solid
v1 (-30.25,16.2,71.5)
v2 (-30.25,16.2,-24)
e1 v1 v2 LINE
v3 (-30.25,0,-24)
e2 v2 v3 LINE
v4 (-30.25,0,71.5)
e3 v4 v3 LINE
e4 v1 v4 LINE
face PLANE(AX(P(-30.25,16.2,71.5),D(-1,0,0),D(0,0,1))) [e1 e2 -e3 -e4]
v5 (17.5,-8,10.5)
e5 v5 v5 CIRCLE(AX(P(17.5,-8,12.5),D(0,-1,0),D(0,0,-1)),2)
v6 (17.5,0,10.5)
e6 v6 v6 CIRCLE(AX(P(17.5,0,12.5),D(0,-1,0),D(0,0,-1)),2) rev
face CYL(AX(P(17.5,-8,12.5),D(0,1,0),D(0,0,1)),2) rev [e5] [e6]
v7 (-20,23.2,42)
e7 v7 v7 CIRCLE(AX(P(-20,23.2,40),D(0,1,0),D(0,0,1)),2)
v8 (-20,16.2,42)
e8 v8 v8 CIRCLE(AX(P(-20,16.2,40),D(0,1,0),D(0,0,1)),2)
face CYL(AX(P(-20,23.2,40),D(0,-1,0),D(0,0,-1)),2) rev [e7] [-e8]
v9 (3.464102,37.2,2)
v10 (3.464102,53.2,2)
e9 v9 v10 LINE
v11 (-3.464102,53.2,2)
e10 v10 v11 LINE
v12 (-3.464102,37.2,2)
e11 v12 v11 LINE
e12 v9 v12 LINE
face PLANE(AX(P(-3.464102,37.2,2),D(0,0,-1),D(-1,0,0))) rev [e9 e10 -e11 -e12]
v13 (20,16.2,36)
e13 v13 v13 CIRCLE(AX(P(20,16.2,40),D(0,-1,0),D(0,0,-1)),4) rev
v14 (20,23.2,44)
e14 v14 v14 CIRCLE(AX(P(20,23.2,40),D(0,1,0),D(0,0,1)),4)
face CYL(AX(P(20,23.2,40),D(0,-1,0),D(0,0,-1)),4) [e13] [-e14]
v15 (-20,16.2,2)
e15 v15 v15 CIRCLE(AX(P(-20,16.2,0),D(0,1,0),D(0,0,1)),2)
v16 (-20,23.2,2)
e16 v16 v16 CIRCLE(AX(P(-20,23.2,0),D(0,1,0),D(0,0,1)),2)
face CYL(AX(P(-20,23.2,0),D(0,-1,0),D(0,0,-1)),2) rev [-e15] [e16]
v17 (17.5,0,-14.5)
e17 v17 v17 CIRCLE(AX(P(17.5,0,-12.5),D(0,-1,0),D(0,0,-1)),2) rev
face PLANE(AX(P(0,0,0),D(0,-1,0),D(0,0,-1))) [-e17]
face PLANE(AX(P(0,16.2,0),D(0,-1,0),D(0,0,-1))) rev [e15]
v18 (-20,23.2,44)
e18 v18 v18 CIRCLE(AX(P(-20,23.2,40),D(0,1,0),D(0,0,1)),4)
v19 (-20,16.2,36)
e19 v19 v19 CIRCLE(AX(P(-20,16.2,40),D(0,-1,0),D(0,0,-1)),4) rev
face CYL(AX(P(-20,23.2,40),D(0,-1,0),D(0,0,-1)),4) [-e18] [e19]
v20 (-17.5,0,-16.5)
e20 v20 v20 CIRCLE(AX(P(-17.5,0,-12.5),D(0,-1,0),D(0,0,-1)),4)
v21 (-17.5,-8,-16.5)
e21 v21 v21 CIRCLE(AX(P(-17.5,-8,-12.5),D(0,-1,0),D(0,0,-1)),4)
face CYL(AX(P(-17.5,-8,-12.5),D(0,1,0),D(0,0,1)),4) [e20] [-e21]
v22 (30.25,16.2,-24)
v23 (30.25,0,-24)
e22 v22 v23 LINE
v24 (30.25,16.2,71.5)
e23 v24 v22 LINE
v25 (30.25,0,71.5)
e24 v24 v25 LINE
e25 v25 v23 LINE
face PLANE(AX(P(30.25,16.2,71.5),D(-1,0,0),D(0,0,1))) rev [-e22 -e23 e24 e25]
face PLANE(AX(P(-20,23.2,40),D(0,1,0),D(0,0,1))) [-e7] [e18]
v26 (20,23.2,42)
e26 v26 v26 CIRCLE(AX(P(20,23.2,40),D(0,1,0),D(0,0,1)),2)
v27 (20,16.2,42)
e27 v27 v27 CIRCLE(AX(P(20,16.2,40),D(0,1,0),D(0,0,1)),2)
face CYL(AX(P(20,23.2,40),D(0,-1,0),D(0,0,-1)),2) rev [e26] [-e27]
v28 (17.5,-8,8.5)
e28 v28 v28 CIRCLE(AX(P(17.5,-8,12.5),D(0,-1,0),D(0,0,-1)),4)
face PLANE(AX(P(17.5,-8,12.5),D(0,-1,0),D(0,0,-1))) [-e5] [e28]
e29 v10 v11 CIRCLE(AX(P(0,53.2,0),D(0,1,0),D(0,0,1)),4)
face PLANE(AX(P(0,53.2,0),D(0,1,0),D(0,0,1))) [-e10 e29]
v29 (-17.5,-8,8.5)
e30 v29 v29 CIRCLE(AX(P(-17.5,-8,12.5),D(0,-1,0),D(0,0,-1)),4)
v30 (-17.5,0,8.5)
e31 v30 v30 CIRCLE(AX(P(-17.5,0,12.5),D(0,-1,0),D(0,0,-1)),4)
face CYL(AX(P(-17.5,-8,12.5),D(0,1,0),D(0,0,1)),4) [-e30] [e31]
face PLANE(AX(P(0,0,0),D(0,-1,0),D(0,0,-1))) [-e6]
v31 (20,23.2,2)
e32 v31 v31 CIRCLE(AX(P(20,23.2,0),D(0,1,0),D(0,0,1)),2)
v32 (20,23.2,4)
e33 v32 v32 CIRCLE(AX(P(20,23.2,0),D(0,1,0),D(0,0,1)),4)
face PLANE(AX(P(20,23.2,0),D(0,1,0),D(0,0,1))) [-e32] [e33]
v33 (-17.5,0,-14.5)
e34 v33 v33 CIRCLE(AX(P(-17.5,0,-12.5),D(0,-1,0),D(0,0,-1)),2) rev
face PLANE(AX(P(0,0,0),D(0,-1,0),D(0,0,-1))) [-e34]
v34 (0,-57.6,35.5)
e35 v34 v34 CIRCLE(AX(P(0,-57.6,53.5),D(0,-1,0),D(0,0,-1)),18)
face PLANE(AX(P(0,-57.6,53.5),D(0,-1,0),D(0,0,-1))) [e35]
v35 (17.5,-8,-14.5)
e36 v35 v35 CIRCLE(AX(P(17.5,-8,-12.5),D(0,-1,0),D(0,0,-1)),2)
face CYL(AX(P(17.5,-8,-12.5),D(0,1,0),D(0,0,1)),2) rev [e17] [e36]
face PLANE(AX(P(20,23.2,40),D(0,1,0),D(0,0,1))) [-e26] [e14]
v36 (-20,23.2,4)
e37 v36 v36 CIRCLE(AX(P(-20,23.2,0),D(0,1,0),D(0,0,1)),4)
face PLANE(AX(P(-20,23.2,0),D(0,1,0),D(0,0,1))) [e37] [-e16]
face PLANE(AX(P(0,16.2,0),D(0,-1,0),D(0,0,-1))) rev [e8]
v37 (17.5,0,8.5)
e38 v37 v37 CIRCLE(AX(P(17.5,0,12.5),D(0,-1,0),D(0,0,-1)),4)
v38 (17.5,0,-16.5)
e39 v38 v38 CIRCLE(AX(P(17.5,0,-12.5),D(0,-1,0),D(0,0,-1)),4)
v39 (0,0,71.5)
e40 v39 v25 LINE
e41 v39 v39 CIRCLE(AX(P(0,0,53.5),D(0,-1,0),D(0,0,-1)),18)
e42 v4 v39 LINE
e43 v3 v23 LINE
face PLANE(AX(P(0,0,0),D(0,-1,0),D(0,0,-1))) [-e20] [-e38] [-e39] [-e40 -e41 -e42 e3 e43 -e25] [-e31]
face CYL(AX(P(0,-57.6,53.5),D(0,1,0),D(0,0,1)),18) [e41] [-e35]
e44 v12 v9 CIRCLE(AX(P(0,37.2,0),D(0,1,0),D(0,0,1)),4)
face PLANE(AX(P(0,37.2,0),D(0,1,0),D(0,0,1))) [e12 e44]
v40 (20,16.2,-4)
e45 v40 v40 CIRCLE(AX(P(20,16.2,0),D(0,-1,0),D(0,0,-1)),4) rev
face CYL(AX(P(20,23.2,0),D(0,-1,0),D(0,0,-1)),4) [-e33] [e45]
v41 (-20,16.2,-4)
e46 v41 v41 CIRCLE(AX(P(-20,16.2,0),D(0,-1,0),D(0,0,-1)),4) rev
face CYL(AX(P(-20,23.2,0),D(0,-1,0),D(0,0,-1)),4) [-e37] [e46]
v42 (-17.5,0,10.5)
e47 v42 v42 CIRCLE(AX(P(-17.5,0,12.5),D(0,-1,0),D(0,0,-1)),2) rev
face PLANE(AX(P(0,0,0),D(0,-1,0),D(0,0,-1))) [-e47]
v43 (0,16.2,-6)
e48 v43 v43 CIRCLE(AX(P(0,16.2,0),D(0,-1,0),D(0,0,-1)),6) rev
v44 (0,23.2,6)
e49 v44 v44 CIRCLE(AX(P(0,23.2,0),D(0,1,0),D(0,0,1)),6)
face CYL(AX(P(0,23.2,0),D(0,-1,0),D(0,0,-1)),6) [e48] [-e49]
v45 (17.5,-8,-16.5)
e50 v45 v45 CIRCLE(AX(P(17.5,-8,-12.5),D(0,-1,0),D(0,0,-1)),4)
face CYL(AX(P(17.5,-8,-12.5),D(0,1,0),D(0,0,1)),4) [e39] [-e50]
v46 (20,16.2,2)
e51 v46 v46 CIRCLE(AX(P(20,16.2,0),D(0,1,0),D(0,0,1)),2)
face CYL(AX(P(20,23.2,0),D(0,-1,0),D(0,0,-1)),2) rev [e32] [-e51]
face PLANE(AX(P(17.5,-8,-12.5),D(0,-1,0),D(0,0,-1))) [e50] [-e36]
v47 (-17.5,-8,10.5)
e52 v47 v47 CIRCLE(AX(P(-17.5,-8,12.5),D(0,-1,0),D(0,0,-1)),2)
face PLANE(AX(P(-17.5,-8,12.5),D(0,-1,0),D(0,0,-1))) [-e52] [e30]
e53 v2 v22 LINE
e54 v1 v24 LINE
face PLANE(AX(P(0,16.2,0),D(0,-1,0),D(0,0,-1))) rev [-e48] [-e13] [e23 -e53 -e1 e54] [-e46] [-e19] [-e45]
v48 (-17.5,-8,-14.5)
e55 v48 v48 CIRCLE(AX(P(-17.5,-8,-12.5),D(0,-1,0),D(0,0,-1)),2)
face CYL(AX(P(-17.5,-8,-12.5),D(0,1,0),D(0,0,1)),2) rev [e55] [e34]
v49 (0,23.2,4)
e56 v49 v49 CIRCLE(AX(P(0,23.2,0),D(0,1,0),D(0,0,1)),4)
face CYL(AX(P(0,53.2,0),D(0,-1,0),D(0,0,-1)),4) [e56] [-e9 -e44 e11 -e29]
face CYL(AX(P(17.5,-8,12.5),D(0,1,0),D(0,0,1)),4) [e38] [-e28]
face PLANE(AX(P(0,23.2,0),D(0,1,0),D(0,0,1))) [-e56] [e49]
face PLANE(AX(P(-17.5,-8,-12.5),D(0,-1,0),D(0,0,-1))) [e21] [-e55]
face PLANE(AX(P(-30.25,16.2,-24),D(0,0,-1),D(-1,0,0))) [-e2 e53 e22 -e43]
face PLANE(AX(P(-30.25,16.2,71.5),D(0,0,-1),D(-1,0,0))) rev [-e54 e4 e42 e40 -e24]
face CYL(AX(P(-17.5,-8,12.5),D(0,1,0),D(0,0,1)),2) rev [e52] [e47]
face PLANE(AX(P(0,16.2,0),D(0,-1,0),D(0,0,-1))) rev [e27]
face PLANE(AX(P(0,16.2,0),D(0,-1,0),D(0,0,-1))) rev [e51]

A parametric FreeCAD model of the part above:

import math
import FreeCAD as App
import Part
import Sketcher

V = App.Vector
Q = App.Units.Quantity


def add_polygon(sketch, points):
    """Adds a closed chain of lines whose ends are joined by coincident constraints."""
    first, n = sketch.GeometryCount, len(points)
    for a, b in zip(points, points[1:] + points[:1]):
        sketch.addGeometry(Part.LineSegment(App.Vector(*a, 0), App.Vector(*b, 0)), False)
    for i in range(n):
        sketch.addConstraint(Sketcher.Constraint("Coincident", first + i, 2, first + (i + 1) % n, 1))

doc = App.newDocument("Part")
body = doc.addObject("PartDesign::Body", "Body")

sketch1 = body.newObject("Sketcher::SketchObject", "Sketch")
sketch1.AttachmentSupport = (doc.getObject("XZ_Plane"), [""])
sketch1.MapMode = "FlatFace"
add_polygon(sketch1, [(-30, -24), (-30, 72), (30, 72), (30, -24)])
sketch1.addConstraint([
    Sketcher.Constraint("Vertical", 0),
    Sketcher.Constraint("Horizontal", 1),
    Sketcher.Constraint("Vertical", 2),
    Sketcher.Constraint("Horizontal", 3),
    Sketcher.Constraint("DistanceX", 1, 1, 1, 2, Q("60.5 mm")),
    Sketcher.Constraint("DistanceY", 0, 1, 0, 2, Q("95.5 mm")),
    Sketcher.Constraint("DistanceY", 2, 2, -1, 1, Q("24 mm")),
    Sketcher.Constraint("DistanceX", 0, 2, -1, 1, Q("30.25 mm")),
])
pad1 = body.newObject("PartDesign::Pad", "Pad")
pad1.Profile = sketch1
pad1.Length = 16.2
pad1.Reversed = True

sketch2 = body.newObject("Sketcher::SketchObject", "Sketch001")
sketch2.AttachmentSupport = (doc.getObject("XZ_Plane"), [""])
sketch2.MapMode = "FlatFace"
sketch2.AttachmentOffset = App.Placement(V(0, 0, -16.2), App.Rotation())
sketch2.addGeometry([
    Part.Circle(V(0, 0, 0), V(0, 0, 1), 6),
    Part.Circle(V(-20, 0, 0), V(0, 0, 1), 4),
    Part.Circle(V(-20, 0, 0), V(0, 0, 1), 2),
    Part.Circle(V(20, 0, 0), V(0, 0, 1), 4),
    Part.Circle(V(20, 0, 0), V(0, 0, 1), 2),
    Part.Circle(V(20, 40, 0), V(0, 0, 1), 4),
    Part.Circle(V(20, 40, 0), V(0, 0, 1), 2),
    Part.Circle(V(-20, 40, 0), V(0, 0, 1), 4),
    Part.Circle(V(-20, 40, 0), V(0, 0, 1), 2),
], False)
sketch2.addConstraint([
    Sketcher.Constraint("Coincident", 0, 3, -1, 1),
    Sketcher.Constraint("Coincident", 2, 3, 1, 3),
    Sketcher.Constraint("Coincident", 4, 3, 3, 3),
    Sketcher.Constraint("Coincident", 6, 3, 5, 3),
    Sketcher.Constraint("Coincident", 8, 3, 7, 3),
    Sketcher.Constraint("Equal", 1, 3),
    Sketcher.Constraint("Equal", 2, 4),
    Sketcher.Constraint("Equal", 3, 5),
    Sketcher.Constraint("Equal", 4, 6),
    Sketcher.Constraint("Equal", 5, 7),
    Sketcher.Constraint("Equal", 6, 8),
    Sketcher.Constraint("Symmetric", 1, 3, 3, 3, -1, 1),
    Sketcher.Constraint("Symmetric", 5, 3, 7, 3, -2),
    Sketcher.Constraint("PointOnObject", 1, 3, -1),
    Sketcher.Constraint("Vertical", 4, 3, 5, 3),
    Sketcher.Constraint("Diameter", 0, Q("12 mm")),
    Sketcher.Constraint("Diameter", 1, Q("8 mm")),
    Sketcher.Constraint("Diameter", 2, Q("4 mm")),
    Sketcher.Constraint("DistanceX", 1, 3, -1, 1, Q("20 mm")),
    Sketcher.Constraint("DistanceY", -1, 1, 5, 3, Q("40 mm")),
])
pad2 = body.newObject("PartDesign::Pad", "Pad001")
pad2.Profile = sketch2
pad2.Length = 7
pad2.Reversed = True

sketch3 = body.newObject("Sketcher::SketchObject", "Sketch002")
sketch3.AttachmentSupport = (doc.getObject("XZ_Plane"), [""])
sketch3.MapMode = "FlatFace"
sketch3.AttachmentOffset = App.Placement(V(0, 0, -23.2), App.Rotation())
sketch3.addGeometry(Part.Circle(V(0, 0, 0), V(0, 0, 1), 4), False)
sketch3.addConstraint([
    Sketcher.Constraint("Coincident", 0, 3, -1, 1),
    Sketcher.Constraint("Diameter", 0, Q("8 mm")),
])
pad3 = body.newObject("PartDesign::Pad", "Pad002")
pad3.Profile = sketch3
pad3.Length = 30
pad3.Reversed = True

sketch4 = body.newObject("Sketcher::SketchObject", "Sketch003")
sketch4.AttachmentSupport = (doc.getObject("XZ_Plane"), [""])
sketch4.MapMode = "FlatFace"
sketch4.AttachmentOffset = App.Placement(V(0, 0, -37.2), App.Rotation())
sketch4.addGeometry([
    Part.LineSegment(V(3.5, 2, 0), V(-3.5, 2, 0)),
    Part.ArcOfCircle(Part.Circle(V(0, 0, 0), V(0, 0, 1), 4), math.radians(30), math.radians(150)),
], False)
sketch4.addConstraint([
    Sketcher.Constraint("Coincident", 0, 1, 1, 1),
    Sketcher.Constraint("Coincident", 1, 2, 0, 2),
    Sketcher.Constraint("Horizontal", 0),
    Sketcher.Constraint("Coincident", 1, 3, -1, 1),
    Sketcher.Constraint("Radius", 1, Q("4 mm")),
    Sketcher.Constraint("DistanceY", -1, 1, 0, 1, Q("2 mm")),
])
pocket1 = body.newObject("PartDesign::Pocket", "Pocket")
pocket1.Profile = sketch4
pocket1.Length = 16

sketch5 = body.newObject("Sketcher::SketchObject", "Sketch004")
sketch5.AttachmentSupport = (doc.getObject("XZ_Plane"), [""])
sketch5.MapMode = "FlatFace"
sketch5.addGeometry([
    Part.Circle(V(17.5, -12.5, 0), V(0, 0, 1), 4),
    Part.Circle(V(17.5, -12.5, 0), V(0, 0, 1), 2),
    Part.Circle(V(-17.5, -12.5, 0), V(0, 0, 1), 4),
    Part.Circle(V(-17.5, -12.5, 0), V(0, 0, 1), 2),
    Part.Circle(V(-17.5, 12.5, 0), V(0, 0, 1), 4),
    Part.Circle(V(-17.5, 12.5, 0), V(0, 0, 1), 2),
    Part.Circle(V(17.5, 12.5, 0), V(0, 0, 1), 4),
    Part.Circle(V(17.5, 12.5, 0), V(0, 0, 1), 2),
], False)
sketch5.addConstraint([
    Sketcher.Constraint("Coincident", 1, 3, 0, 3),
    Sketcher.Constraint("Coincident", 3, 3, 2, 3),
    Sketcher.Constraint("Coincident", 5, 3, 4, 3),
    Sketcher.Constraint("Coincident", 7, 3, 6, 3),
    Sketcher.Constraint("Equal", 0, 2),
    Sketcher.Constraint("Equal", 1, 3),
    Sketcher.Constraint("Equal", 2, 4),
    Sketcher.Constraint("Equal", 3, 5),
    Sketcher.Constraint("Equal", 4, 6),
    Sketcher.Constraint("Equal", 5, 7),
    Sketcher.Constraint("Symmetric", 0, 3, 4, 3, -1, 1),
    Sketcher.Constraint("Symmetric", 2, 3, 6, 3, -1, 1),
    Sketcher.Constraint("Symmetric", 0, 3, 2, 3, -2),
    Sketcher.Constraint("Diameter", 0, Q("8 mm")),
    Sketcher.Constraint("Diameter", 1, Q("4 mm")),
    Sketcher.Constraint("DistanceX", 2, 3, 0, 3, Q("35 mm")),
    Sketcher.Constraint("DistanceY", 2, 3, 4, 3, Q("25 mm")),
])
pad4 = body.newObject("PartDesign::Pad", "Pad003")
pad4.Profile = sketch5
pad4.Length = 8

sketch6 = body.newObject("Sketcher::SketchObject", "Sketch005")
sketch6.AttachmentSupport = (doc.getObject("XZ_Plane"), [""])
sketch6.MapMode = "FlatFace"
sketch6.addGeometry(Part.Circle(V(0, 54, 0), V(0, 0, 1), 18), False)
sketch6.addConstraint([
    Sketcher.Constraint("PointOnObject", 0, 3, -2),
    Sketcher.Constraint("Diameter", 0, Q("36 mm")),
    Sketcher.Constraint("DistanceY", -1, 1, 0, 3, Q("53.5 mm")),
])
pad5 = body.newObject("PartDesign::Pad", "Pad004")
pad5.Profile = sketch6
pad5.Length = 57.6

doc.recompute()
